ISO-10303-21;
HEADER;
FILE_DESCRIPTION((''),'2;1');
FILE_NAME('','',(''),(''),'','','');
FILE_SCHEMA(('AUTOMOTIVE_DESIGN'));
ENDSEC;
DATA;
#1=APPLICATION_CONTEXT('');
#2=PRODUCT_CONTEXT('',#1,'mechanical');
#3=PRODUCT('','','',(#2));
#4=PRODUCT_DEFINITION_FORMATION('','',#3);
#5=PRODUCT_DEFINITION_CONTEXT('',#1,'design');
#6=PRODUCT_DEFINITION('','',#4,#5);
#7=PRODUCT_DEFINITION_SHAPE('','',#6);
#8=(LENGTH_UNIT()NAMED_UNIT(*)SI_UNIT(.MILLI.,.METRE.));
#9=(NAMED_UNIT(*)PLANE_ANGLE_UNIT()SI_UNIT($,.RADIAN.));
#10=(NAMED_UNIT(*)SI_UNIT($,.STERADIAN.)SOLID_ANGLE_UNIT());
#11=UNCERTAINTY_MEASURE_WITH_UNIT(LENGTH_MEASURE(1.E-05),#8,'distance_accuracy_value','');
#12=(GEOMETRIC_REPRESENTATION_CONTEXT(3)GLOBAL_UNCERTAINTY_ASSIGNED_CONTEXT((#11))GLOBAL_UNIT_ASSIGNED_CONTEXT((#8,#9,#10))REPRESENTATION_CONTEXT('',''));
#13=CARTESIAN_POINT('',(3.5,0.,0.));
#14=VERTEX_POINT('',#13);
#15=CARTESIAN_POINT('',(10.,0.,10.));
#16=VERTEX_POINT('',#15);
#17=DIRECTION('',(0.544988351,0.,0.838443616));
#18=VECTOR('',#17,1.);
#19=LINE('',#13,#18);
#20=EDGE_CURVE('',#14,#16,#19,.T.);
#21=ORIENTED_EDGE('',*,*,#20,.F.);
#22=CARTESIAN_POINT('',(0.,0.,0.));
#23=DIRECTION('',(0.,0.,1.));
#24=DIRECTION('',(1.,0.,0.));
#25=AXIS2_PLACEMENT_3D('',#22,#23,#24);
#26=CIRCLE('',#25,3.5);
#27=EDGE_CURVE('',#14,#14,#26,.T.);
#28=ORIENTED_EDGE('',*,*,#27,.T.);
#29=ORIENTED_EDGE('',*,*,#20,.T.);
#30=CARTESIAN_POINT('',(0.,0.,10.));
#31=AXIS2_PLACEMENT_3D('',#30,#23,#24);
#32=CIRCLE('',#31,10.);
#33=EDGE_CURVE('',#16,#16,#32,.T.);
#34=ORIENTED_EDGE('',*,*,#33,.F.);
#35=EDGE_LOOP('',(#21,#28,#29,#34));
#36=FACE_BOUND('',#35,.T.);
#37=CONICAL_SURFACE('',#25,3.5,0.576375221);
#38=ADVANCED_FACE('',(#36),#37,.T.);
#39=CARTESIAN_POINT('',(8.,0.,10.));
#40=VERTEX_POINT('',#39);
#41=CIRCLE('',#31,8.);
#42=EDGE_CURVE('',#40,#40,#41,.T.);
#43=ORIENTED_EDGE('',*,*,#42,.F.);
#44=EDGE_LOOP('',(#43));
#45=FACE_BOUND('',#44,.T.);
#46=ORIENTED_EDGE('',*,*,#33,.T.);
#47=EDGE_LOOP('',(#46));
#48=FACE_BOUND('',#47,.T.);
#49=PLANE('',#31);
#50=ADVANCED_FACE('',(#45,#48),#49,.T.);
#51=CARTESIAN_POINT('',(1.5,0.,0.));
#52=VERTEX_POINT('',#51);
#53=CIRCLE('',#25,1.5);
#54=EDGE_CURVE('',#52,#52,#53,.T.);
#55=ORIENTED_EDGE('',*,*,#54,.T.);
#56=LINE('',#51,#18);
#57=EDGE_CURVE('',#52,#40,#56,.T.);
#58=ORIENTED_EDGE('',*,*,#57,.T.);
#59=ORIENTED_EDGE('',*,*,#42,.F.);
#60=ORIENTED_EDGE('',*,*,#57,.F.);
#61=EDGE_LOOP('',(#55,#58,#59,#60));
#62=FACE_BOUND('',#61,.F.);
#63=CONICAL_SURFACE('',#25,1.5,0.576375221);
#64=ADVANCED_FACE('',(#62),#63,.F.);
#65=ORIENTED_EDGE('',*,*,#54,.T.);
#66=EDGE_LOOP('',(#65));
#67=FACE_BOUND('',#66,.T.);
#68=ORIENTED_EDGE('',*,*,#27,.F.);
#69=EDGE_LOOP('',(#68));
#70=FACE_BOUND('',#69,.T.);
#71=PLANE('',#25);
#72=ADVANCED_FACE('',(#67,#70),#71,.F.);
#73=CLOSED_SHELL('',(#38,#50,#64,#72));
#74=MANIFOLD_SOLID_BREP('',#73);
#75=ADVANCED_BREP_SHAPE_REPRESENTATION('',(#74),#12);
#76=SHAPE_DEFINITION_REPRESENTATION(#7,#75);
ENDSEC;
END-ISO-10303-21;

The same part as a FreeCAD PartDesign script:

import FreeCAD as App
import Part
import Sketcher

doc = App.newDocument("Part")
body = doc.addObject("PartDesign::Body", "Body")

# Sketch on XZ plane
sketch1 = body.newObject("Sketcher::SketchObject", "Sketch")
sketch1.AttachmentSupport = (doc.getObject("XZ_Plane"), [""])
sketch1.MapMode = "FlatFace"
sketch1.addGeometry(Part.LineSegment(App.Vector(0, 0, 0), App.Vector(1.5, 0, 0)), False)
sketch1.addGeometry(Part.LineSegment(App.Vector(1.5, 0, 0), App.Vector(8, 10, 0)), False)
sketch1.addGeometry(Part.LineSegment(App.Vector(8, 10, 0), App.Vector(0, 10, 0)), False)
sketch1.addGeometry(Part.LineSegment(App.Vector(0, 10, 0), App.Vector(0, 0, 0)), False)
sketch1.addConstraint(Sketcher.Constraint("Coincident", 0, 2, 1, 1))
sketch1.addConstraint(Sketcher.Constraint("Coincident", 1, 2, 2, 1))
sketch1.addConstraint(Sketcher.Constraint("Coincident", 2, 2, 3, 1))
sketch1.addConstraint(Sketcher.Constraint("Coincident", 3, 2, 0, 1))
sketch1.addConstraint(Sketcher.Constraint("Horizontal", 0))
sketch1.addConstraint(Sketcher.Constraint("Horizontal", 2))
sketch1.addConstraint(Sketcher.Constraint("Vertical", 3))
sketch1.addConstraint(Sketcher.Constraint("Coincident", 3, 2, -1, 1))
sketch1.addConstraint(Sketcher.Constraint("DistanceX", 2, 2, 2, 1, 8.0))
sketch1.addConstraint(Sketcher.Constraint("DistanceY", 3, 2, 3, 1, 10.0))
sketch1.addConstraint(Sketcher.Constraint("DistanceX", 0, 1, 0, 2, 1.5))
revolution = body.newObject("PartDesign::Revolution", "Revolution")
revolution.Profile = sketch1
revolution.ReferenceAxis = (sketch1, ["V_Axis"])
revolution.Angle = 360
body2 = doc.addObject("PartDesign::Body", "Body001")

# Sketch on XZ plane
sketch2 = body2.newObject("Sketcher::SketchObject", "Sketch001")
sketch2.AttachmentSupport = (doc.getObject("XZ_Plane001"), [""])
sketch2.MapMode = "FlatFace"
sketch2.addGeometry(Part.LineSegment(App.Vector(0, 0, 0), App.Vector(3.5, 0, 0)), False)
sketch2.addGeometry(Part.LineSegment(App.Vector(3.5, 0, 0), App.Vector(10, 10, 0)), False)
sketch2.addGeometry(Part.LineSegment(App.Vector(10, 10, 0), App.Vector(0, 10, 0)), False)
sketch2.addGeometry(Part.LineSegment(App.Vector(0, 10, 0), App.Vector(0, 0, 0)), False)
sketch2.addConstraint(Sketcher.Constraint("Coincident", 0, 2, 1, 1))
sketch2.addConstraint(Sketcher.Constraint("Coincident", 1, 2, 2, 1))
sketch2.addConstraint(Sketcher.Constraint("Coincident", 2, 2, 3, 1))
sketch2.addConstraint(Sketcher.Constraint("Coincident", 3, 2, 0, 1))
sketch2.addConstraint(Sketcher.Constraint("Horizontal", 0))
sketch2.addConstraint(Sketcher.Constraint("Horizontal", 2))
sketch2.addConstraint(Sketcher.Constraint("Vertical", 3))
sketch2.addConstraint(Sketcher.Constraint("Coincident", 3, 2, -1, 1))
sketch2.addConstraint(Sketcher.Constraint("Equal", 2, 3))
sketch2.addConstraint(Sketcher.Constraint("DistanceX", 2, 2, 2, 1, 10.0))
sketch2.addConstraint(Sketcher.Constraint("DistanceX", 0, 1, 0, 2, 3.5))
revolution2 = body2.newObject("PartDesign::Revolution", "Revolution001")
revolution2.Profile = sketch2
revolution2.ReferenceAxis = (sketch2, ["V_Axis"])
revolution2.Angle = 360
doc.recompute()

boolean = body2.newObject("PartDesign::Boolean", "Boolean")
boolean.Type = "Cut"
boolean.addObjects([body])

doc.recompute()
